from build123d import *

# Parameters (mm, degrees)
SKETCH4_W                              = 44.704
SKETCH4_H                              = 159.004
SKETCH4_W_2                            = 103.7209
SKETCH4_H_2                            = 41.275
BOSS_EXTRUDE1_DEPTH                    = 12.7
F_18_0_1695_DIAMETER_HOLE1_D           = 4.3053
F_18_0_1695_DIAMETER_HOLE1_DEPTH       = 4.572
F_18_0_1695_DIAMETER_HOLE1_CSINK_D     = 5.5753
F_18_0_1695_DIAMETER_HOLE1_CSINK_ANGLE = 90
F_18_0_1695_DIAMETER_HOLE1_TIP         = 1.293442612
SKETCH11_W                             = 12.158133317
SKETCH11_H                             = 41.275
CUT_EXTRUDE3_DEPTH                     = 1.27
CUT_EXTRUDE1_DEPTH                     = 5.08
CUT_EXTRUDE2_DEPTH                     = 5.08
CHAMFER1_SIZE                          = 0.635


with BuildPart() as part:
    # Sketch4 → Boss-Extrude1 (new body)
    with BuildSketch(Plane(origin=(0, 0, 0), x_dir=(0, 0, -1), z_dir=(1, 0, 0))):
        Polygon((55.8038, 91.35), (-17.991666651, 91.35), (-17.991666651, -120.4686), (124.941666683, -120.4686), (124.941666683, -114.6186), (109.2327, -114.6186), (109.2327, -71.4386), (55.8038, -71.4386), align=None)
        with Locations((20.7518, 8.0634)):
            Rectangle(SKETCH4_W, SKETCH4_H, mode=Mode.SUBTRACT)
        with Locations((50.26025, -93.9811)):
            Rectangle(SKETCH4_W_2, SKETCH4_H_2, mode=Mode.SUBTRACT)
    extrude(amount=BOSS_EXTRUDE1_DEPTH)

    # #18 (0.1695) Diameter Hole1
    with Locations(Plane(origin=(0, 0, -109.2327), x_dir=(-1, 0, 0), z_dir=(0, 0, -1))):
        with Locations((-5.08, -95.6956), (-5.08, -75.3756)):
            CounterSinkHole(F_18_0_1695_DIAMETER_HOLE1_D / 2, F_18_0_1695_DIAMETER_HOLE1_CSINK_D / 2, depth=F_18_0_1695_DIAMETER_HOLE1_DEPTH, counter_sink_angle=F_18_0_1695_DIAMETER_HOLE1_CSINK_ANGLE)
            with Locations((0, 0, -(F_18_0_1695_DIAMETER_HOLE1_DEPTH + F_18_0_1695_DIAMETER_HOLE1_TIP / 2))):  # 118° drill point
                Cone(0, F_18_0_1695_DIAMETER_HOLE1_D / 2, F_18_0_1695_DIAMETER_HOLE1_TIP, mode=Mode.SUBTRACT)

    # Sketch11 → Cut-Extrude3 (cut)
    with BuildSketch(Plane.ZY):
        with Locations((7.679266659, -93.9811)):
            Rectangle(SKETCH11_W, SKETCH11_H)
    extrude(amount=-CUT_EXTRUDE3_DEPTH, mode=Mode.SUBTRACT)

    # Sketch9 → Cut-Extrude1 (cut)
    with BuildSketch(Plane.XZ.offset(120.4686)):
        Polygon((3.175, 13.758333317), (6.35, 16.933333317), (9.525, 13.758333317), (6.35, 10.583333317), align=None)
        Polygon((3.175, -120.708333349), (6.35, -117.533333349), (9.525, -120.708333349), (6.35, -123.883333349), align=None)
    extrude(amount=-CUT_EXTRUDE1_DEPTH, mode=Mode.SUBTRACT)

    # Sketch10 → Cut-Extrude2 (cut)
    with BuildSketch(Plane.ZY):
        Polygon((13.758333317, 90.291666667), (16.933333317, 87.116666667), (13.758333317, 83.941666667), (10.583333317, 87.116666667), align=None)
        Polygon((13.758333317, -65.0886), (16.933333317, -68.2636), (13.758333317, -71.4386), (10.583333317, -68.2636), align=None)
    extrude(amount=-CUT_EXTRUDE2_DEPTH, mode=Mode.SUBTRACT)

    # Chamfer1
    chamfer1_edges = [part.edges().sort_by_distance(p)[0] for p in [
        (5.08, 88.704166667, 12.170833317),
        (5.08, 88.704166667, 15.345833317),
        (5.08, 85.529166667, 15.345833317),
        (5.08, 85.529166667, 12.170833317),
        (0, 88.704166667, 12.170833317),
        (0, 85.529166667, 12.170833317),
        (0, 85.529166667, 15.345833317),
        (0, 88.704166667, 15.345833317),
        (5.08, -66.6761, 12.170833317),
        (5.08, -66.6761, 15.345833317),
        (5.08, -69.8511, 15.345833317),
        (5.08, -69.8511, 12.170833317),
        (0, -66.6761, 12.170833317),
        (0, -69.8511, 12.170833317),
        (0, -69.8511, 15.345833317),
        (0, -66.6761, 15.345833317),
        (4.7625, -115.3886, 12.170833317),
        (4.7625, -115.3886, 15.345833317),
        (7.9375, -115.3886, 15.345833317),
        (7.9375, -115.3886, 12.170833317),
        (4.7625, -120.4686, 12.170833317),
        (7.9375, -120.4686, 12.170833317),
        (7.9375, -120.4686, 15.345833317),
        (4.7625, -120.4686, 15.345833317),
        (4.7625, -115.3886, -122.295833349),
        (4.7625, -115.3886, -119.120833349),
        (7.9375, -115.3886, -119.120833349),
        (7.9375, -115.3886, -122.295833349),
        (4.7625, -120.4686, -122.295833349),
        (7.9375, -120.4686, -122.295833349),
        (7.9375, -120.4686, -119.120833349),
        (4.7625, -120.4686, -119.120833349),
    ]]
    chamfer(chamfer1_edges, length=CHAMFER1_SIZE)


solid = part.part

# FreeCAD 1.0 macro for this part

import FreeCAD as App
import Part
import Sketcher

V = App.Vector
Q = App.Units.Quantity


def edges_at(feature, points):
    """Names of the edges that pass closest to the given points."""
    edges = feature.Shape.Edges
    near = lambda p: min(range(len(edges)), key=lambda i: edges[i].distToShape(Part.Vertex(*p))[0])
    return sorted({f"Edge{near(p) + 1}" for p in points})


def add_polygon(sketch, points):
    """Adds a closed chain of lines whose ends are joined by coincident constraints."""
    first, n = sketch.GeometryCount, len(points)
    for a, b in zip(points, points[1:] + points[:1]):
        sketch.addGeometry(Part.LineSegment(App.Vector(*a, 0), App.Vector(*b, 0)), False)
    for i in range(n):
        sketch.addConstraint(Sketcher.Constraint("Coincident", first + i, 2, first + (i + 1) % n, 1))

doc = App.newDocument("Part")
params = doc.addObject("Spreadsheet::Sheet", "Params")
for row, (alias, value) in enumerate([
    ("sketch1_width", "1.7 in"),
    ("sketch1_width2", "6.26 in"),
    ("sketch1_height", "1.76 in"),
    ("sketch1_width3", "6.409 in"),
    ("sketch1_width4", "1.625 in"),
    ("pad1_length", "0.5 in"),
    ("hole_diameter", "0.1695 in"),
    ("hole_depth", "0.18 in"),
    ("hole_csink_diameter", "0.2195 in"),
    ("sketch3_width", "1.625 in"),
    ("pocket1_length", "0.05 in"),
    ("pocket2_length", "0.2 in"),
    ("pocket3_length", "0.2 in"),
    ("chamfer_size", "0.025 in"),
], start=1):
    params.set(f"A{row}", alias)
    params.set(f"B{row}", "=" + value)
    params.setAlias(f"B{row}", alias)

body = doc.addObject("PartDesign::Body", "Body")

# Sketch on YZ plane
sketch1 = doc.addObject("Sketcher::SketchObject", "Sketch")
body.addObject(sketch1)
sketch1.AttachmentSupport = (doc.YZ_Plane, [""])
sketch1.MapMode = "FlatFace"
add_polygon(sketch1, [(91, -56), (91, 18), (-120, 18), (-120, -125), (-115, -125), (-115, -109), (-71, -109), (-71, -56)])  # lines 0-7
add_polygon(sketch1, [(-115, -102), (-115, 2), (-73, 2), (-73, -102)])  # lines 8-11
add_polygon(sketch1, [(-71, -43), (-71, 2), (88, 2), (88, -43)])  # lines 12-15
sketch1.addConstraint(Sketcher.Constraint("Vertical", 0))
sketch1.addConstraint(Sketcher.Constraint("Horizontal", 1))
sketch1.addConstraint(Sketcher.Constraint("Vertical", 2))
sketch1.addConstraint(Sketcher.Constraint("Horizontal", 3))
sketch1.addConstraint(Sketcher.Constraint("Vertical", 4))
sketch1.addConstraint(Sketcher.Constraint("Horizontal", 5))
sketch1.addConstraint(Sketcher.Constraint("Vertical", 6))
sketch1.addConstraint(Sketcher.Constraint("Horizontal", 7))
sketch1.addConstraint(Sketcher.Constraint("Vertical", 8))
sketch1.addConstraint(Sketcher.Constraint("Horizontal", 9))
sketch1.addConstraint(Sketcher.Constraint("Vertical", 10))
sketch1.addConstraint(Sketcher.Constraint("Horizontal", 11))
sketch1.addConstraint(Sketcher.Constraint("Vertical", 12))
sketch1.addConstraint(Sketcher.Constraint("Horizontal", 13))
sketch1.addConstraint(Sketcher.Constraint("Vertical", 14))
sketch1.addConstraint(Sketcher.Constraint("Horizontal", 15))
sketch1.addConstraint(Sketcher.Constraint("Horizontal", 9, 2, 12, 2))
sketch1.addConstraint(Sketcher.Constraint("Vertical", 4, 2, 8, 2))
sketch1.addConstraint(Sketcher.Constraint("Vertical", 6, 2, 12, 2))
sketch1.addConstraint(Sketcher.Constraint("DistanceX", 5, 1, 5, 2, Q("1.7 in")))
sketch1.addConstraint(Sketcher.Constraint("DistanceX", 13, 1, 13, 2, Q("6.26 in")))
sketch1.addConstraint(Sketcher.Constraint("DistanceY", 12, 1, 12, 2, Q("1.76 in")))
sketch1.addConstraint(Sketcher.Constraint("DistanceY", 7, 2, 14, 2, Q("0.5 in")))
sketch1.addConstraint(Sketcher.Constraint("DistanceX", 7, 1, 7, 2, Q("6.409 in")))
sketch1.addConstraint(Sketcher.Constraint("DistanceX", 9, 1, 9, 2, Q("1.625 in")))
sketch1.addConstraint(Sketcher.Constraint("DistanceY", 5, 2, 10, 2, Q("0.28 in")))
sketch1.addConstraint(Sketcher.Constraint("DistanceY", 6, 1, 6, 2, Q("2.1035 in")))
sketch1.addConstraint(Sketcher.Constraint("DistanceY", 6, 2, -1, 1, Q("2.197 in")))
sketch1.addConstraint(Sketcher.Constraint("DistanceX", 1, 2, 1, 1, Q("211.8186 mm")))
sketch1.addConstraint(Sketcher.Constraint("DistanceX", -1, 1, 0, 2, Q("91.35 mm")))
sketch1.addConstraint(Sketcher.Constraint("DistanceY", 0, 1, 0, 2, Q("73.795467 mm")))
sketch1.addConstraint(Sketcher.Constraint("DistanceY", 2, 2, 2, 1, Q("142.933333 mm")))
sketch1.setExpression("Constraints[35]", "Params.sketch1_width")
sketch1.setExpression("Constraints[36]", "Params.sketch1_width2")
sketch1.setExpression("Constraints[37]", "Params.sketch1_height")
sketch1.setExpression("Constraints[39]", "Params.sketch1_width3")
sketch1.setExpression("Constraints[40]", "Params.sketch1_width4")
pad1 = doc.addObject("PartDesign::Pad", "Pad")
body.addObject(pad1)
pad1.Profile = sketch1
pad1.setExpression("Length", "Params.pad1_length")

# Sketch on XY plane
sketch2 = doc.addObject("Sketcher::SketchObject", "Sketch001")
body.addObject(sketch2)
sketch2.AttachmentSupport = (doc.XY_Plane, [""])
sketch2.MapMode = "FlatFace"
sketch2.AttachmentOffset = App.Placement(V(0, 0, -4.3005 * 25.4), App.Rotation())
sketch2.addGeometry(Part.Circle(V(5.1, -95.7, 0), V(0, 0, 1), 2.2), False)
sketch2.addGeometry(Part.Circle(V(5.1, -75.4, 0), V(0, 0, 1), 2.2), False)
sketch2.addConstraint(Sketcher.Constraint("Equal", 0, 1))
sketch2.addConstraint(Sketcher.Constraint("Vertical", 0, 3, 1, 3))
sketch2.addConstraint(Sketcher.Constraint("Diameter", 0, Q("0.1695 in")))
sketch2.addConstraint(Sketcher.Constraint("DistanceX", -1, 1, 0, 3, Q("0.2 in")))
sketch2.addConstraint(Sketcher.Constraint("DistanceY", 0, 3, 1, 3, Q("0.8 in")))
sketch2.addConstraint(Sketcher.Constraint("DistanceY", 0, 3, -1, 1, Q("95.6956 mm")))
doc.recompute()
hole = doc.addObject("PartDesign::Hole", "Hole")
body.addObject(hole)
hole.Profile = sketch2
hole.ThreadType = "None"
hole.setExpression("Diameter", "Params.hole_diameter")
hole.DepthType = "Dimension"
hole.setExpression("Depth", "Params.hole_depth")
hole.DrillPoint = "Angled"
hole.DrillPointAngle = 118
hole.HoleCutType = "Countersink"
hole.setExpression("HoleCutDiameter", "Params.hole_csink_diameter")
hole.HoleCutCountersinkAngle = 90
hole.Reversed = True

# Sketch on YZ plane
sketch3 = doc.addObject("Sketcher::SketchObject", "Sketch002")
body.addObject(sketch3)
sketch3.AttachmentSupport = (doc.YZ_Plane, [""])
sketch3.MapMode = "FlatFace"
add_polygon(sketch3, [(-73, 2), (-115, 2), (-115, 14), (-73, 14)])  # lines 0-3
sketch3.addConstraint(Sketcher.Constraint("Horizontal", 0))
sketch3.addConstraint(Sketcher.Constraint("Vertical", 1))
sketch3.addConstraint(Sketcher.Constraint("Horizontal", 2))
sketch3.addConstraint(Sketcher.Constraint("Vertical", 3))
sketch3.addConstraint(Sketcher.Constraint("DistanceX", 0, 2, 0, 1, Q("1.625 in")))
sketch3.addConstraint(Sketcher.Constraint("DistanceY", -1, 1, 0, 2, Q("0.063 in")))
sketch3.addConstraint(Sketcher.Constraint("DistanceX", 0, 2, -1, 1, Q("114.6186 mm")))
sketch3.addConstraint(Sketcher.Constraint("DistanceY", 1, 1, 1, 2, Q("12.158133 mm")))
sketch3.setExpression("Constraints[8]", "Params.sketch3_width")
pocket1 = doc.addObject("PartDesign::Pocket", "Pocket")
body.addObject(pocket1)
pocket1.Profile = sketch3
pocket1.setExpression("Length", "Params.pocket1_length")
pocket1.Reversed = True

# Sketch on XZ plane
sketch4 = doc.addObject("Sketcher::SketchObject", "Sketch003")
body.addObject(sketch4)
sketch4.AttachmentSupport = (doc.XZ_Plane, [""])
sketch4.MapMode = "FlatFace"
sketch4.AttachmentOffset = App.Placement(V(0, 0, 120.4686), App.Rotation())
add_polygon(sketch4, [(6.3, 16.9), (3.2, 13.8), (6.3, 10.6), (9.5, 13.8)])  # lines 0-3
add_polygon(sketch4, [(6.3, -117.5), (3.2, -120.7), (6.3, -123.9), (9.5, -120.7)])  # lines 4-7
sketch4.addConstraint(Sketcher.Constraint("Perpendicular", 0, 1))
sketch4.addConstraint(Sketcher.Constraint("Perpendicular", 1, 2))
sketch4.addConstraint(Sketcher.Constraint("Perpendicular", 2, 3))
sketch4.addConstraint(Sketcher.Constraint("Perpendicular", 3, 4))
sketch4.addConstraint(Sketcher.Constraint("Perpendicular", 4, 5))
sketch4.addConstraint(Sketcher.Constraint("Perpendicular", 5, 6))
sketch4.addConstraint(Sketcher.Constraint("Perpendicular", 6, 7))
sketch4.addConstraint(Sketcher.Constraint("Horizontal", 0, 2, 2, 2))
sketch4.addConstraint(Sketcher.Constraint("Horizontal", 4, 2, 6, 2))
sketch4.addConstraint(Sketcher.Constraint("Vertical", 1, 2, 3, 2))
sketch4.addConstraint(Sketcher.Constraint("Vertical", 0, 2, 4, 2))
sketch4.addConstraint(Sketcher.Constraint("Vertical", 3, 2, 5, 2))
sketch4.addConstraint(Sketcher.Constraint("DistanceX", -1, 1, 1, 2, Q("0.25 in")))
sketch4.addConstraint(Sketcher.Constraint("DistanceX", 0, 2, 2, 2, Q("0.25 in")))
sketch4.addConstraint(Sketcher.Constraint("DistanceY", -1, 1, 0, 2, Q("13.758333 mm")))
sketch4.addConstraint(Sketcher.Constraint("DistanceY", 4, 2, -1, 1, Q("120.708333 mm")))
pocket2 = doc.addObject("PartDesign::Pocket", "Pocket001")
body.addObject(pocket2)
pocket2.Profile = sketch4
pocket2.setExpression("Length", "Params.pocket2_length")

# Sketch on YZ plane
sketch5 = doc.addObject("Sketcher::SketchObject", "Sketch004")
body.addObject(sketch5)
sketch5.AttachmentSupport = (doc.YZ_Plane, [""])
sketch5.MapMode = "FlatFace"
add_polygon(sketch5, [(87.1, 16.9), (90.3, 13.8), (87.1, 10.6), (83.9, 13.8)])  # lines 0-3
add_polygon(sketch5, [(-68.3, 16.9), (-65.1, 13.8), (-68.3, 10.6), (-71.4, 13.8)])  # lines 4-7
sketch5.addConstraint(Sketcher.Constraint("Perpendicular", 0, 1))
sketch5.addConstraint(Sketcher.Constraint("Perpendicular", 1, 2))
sketch5.addConstraint(Sketcher.Constraint("Perpendicular", 2, 3))
sketch5.addConstraint(Sketcher.Constraint("Perpendicular", 3, 4))
sketch5.addConstraint(Sketcher.Constraint("Perpendicular", 4, 5))
sketch5.addConstraint(Sketcher.Constraint("Perpendicular", 5, 6))
sketch5.addConstraint(Sketcher.Constraint("Perpendicular", 6, 7))
sketch5.addConstraint(Sketcher.Constraint("Horizontal", 0, 2, 2, 2))
sketch5.addConstraint(Sketcher.Constraint("Horizontal", 2, 2, 4, 2))
sketch5.addConstraint(Sketcher.Constraint("Horizontal", 1, 2, 5, 2))
sketch5.addConstraint(Sketcher.Constraint("Horizontal", 4, 2, 6, 2))
sketch5.addConstraint(Sketcher.Constraint("Vertical", 1, 2, 3, 2))
sketch5.addConstraint(Sketcher.Constraint("DistanceX", 2, 2, 0, 2, Q("0.25 in")))
sketch5.addConstraint(Sketcher.Constraint("DistanceX", 4, 2, -1, 1, Q("65.0886 mm")))
sketch5.addConstraint(Sketcher.Constraint("DistanceX", -1, 1, 0, 2, Q("90.291667 mm")))
sketch5.addConstraint(Sketcher.Constraint("DistanceY", -1, 1, 0, 2, Q("13.758333 mm")))
pocket3 = doc.addObject("PartDesign::Pocket", "Pocket002")
body.addObject(pocket3)
pocket3.Profile = sketch5
pocket3.setExpression("Length", "Params.pocket3_length")
pocket3.Reversed = True
doc.recompute()

chamfer = doc.addObject("PartDesign::Chamfer", "Chamfer")
body.addObject(chamfer)
chamfer.Base = (pocket3, edges_at(pocket3, [
    (5.08, 88.704, 12.171),
    (5.08, 88.704, 15.346),
    (5.08, 85.529, 15.346),
    (5.08, 85.529, 12.171),
    (0, 88.704, 12.171),
    (0, 85.529, 12.171),
    (0, 85.529, 15.346),
    (0, 88.704, 15.346),
    (5.08, -66.676, 12.171),
    (5.08, -66.676, 15.346),
    (5.08, -69.851, 15.346),
    (5.08, -69.851, 12.171),
    (0, -66.676, 12.171),
    (0, -69.851, 12.171),
    (0, -69.851, 15.346),
    (0, -66.676, 15.346),
    (4.763, -115.389, 12.171),
    (4.763, -115.389, 15.346),
    (7.938, -115.389, 15.346),
    (7.938, -115.389, 12.171),
    (4.763, -120.469, 12.171),
    (7.938, -120.469, 12.171),
    (7.938, -120.469, 15.346),
    (4.763, -120.469, 15.346),
    (4.763, -115.389, -122.296),
    (4.763, -115.389, -119.121),
    (7.938, -115.389, -119.121),
    (7.938, -115.389, -122.296),
    (4.763, -120.469, -122.296),
    (7.938, -120.469, -122.296),
    (7.938, -120.469, -119.121),
    (4.763, -120.469, -119.121),
]))
chamfer.setExpression("Size", "Params.chamfer_size")

doc.recompute()
